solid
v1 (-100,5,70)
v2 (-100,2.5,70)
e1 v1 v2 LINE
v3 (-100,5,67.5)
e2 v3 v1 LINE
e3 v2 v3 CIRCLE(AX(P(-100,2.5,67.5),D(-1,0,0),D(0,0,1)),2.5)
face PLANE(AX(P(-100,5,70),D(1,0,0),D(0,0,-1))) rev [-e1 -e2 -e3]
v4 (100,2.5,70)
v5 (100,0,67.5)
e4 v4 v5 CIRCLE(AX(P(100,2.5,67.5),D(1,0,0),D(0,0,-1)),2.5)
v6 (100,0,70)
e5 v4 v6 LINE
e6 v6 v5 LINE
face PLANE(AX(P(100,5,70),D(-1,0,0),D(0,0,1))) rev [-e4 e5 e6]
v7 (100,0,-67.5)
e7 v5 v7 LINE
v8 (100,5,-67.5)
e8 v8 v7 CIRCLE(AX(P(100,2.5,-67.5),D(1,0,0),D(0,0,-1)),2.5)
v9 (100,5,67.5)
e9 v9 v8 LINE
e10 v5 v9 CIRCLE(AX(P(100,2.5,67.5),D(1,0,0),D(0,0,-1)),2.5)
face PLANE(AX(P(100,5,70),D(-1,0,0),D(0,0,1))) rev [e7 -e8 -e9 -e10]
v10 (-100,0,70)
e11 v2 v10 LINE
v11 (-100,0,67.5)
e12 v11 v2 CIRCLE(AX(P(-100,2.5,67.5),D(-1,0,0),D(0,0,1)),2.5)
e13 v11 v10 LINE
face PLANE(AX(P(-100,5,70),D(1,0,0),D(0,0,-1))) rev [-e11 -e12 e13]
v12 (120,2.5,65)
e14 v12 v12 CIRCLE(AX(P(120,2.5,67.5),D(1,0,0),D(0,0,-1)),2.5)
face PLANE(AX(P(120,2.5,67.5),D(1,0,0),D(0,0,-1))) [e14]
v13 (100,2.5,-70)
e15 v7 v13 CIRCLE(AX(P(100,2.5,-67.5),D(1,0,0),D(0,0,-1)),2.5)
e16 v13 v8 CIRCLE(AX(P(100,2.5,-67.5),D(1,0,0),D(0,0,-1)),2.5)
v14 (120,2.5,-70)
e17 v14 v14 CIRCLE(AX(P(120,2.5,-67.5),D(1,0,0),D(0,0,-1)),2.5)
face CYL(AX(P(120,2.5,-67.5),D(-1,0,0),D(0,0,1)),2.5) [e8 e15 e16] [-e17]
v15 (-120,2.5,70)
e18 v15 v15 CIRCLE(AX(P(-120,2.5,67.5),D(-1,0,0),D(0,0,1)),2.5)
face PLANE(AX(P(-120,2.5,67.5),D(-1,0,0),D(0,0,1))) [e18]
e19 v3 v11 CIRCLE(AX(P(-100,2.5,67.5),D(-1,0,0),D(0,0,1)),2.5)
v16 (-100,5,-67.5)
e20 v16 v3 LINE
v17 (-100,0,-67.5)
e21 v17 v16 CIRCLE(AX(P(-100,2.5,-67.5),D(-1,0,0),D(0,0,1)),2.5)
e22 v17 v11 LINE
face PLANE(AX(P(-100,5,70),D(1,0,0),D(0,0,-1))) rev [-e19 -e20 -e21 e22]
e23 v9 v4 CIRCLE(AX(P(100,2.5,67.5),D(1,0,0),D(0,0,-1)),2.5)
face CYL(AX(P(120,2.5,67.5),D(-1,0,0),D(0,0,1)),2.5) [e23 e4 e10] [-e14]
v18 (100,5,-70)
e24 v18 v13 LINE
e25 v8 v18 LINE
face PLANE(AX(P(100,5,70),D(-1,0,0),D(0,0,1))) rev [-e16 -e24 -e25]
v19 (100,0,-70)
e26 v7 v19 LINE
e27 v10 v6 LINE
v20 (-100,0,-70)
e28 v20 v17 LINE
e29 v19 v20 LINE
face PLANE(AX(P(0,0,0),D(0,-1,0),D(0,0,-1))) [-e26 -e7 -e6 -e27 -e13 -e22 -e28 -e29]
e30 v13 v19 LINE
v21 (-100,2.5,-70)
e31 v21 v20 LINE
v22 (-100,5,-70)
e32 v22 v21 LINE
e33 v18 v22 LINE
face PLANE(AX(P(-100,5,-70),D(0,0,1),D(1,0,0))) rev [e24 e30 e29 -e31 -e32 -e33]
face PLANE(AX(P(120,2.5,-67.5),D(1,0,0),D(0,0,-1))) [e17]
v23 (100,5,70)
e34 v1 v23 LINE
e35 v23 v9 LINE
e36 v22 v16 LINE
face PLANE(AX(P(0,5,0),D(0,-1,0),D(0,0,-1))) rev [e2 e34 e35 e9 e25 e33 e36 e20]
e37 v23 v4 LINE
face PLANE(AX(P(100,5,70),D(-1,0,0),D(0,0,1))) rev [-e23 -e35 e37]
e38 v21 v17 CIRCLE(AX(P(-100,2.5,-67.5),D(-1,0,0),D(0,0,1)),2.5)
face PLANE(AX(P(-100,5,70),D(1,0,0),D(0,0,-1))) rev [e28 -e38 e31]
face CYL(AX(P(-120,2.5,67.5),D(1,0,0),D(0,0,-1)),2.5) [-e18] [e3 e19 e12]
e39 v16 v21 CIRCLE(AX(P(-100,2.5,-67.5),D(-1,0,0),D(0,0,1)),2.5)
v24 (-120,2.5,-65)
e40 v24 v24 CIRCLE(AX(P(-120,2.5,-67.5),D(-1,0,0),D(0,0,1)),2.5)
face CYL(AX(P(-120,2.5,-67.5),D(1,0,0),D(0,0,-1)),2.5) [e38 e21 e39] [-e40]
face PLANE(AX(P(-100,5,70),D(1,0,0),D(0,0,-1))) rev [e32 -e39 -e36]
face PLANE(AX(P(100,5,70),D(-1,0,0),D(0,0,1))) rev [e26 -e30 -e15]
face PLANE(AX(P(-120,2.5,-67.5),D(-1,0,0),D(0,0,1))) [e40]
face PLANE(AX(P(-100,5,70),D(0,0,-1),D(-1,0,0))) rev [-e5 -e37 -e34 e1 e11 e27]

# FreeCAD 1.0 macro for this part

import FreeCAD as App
import Part
import Sketcher

V = App.Vector

doc = App.newDocument("Part")
body = doc.addObject("PartDesign::Body", "Body")

# Sketch on XZ plane
sketch1 = body.newObject("Sketcher::SketchObject", "Sketch")
sketch1.AttachmentSupport = (doc.getObject("XZ_Plane"), [""])
sketch1.MapMode = "FlatFace"
sketch1.addGeometry(Part.LineSegment(V(-100, -70, 0), V(-100, 70, 0)), False)
sketch1.addGeometry(Part.LineSegment(V(-100, 70, 0), V(100, 70, 0)), False)
sketch1.addGeometry(Part.LineSegment(V(100, 70, 0), V(100, -70, 0)), False)
sketch1.addGeometry(Part.LineSegment(V(100, -70, 0), V(-100, -70, 0)), False)
sketch1.addConstraint(Sketcher.Constraint("Coincident", 0, 2, 1, 1))
sketch1.addConstraint(Sketcher.Constraint("Coincident", 1, 2, 2, 1))
sketch1.addConstraint(Sketcher.Constraint("Coincident", 2, 2, 3, 1))
sketch1.addConstraint(Sketcher.Constraint("Coincident", 3, 2, 0, 1))
sketch1.addConstraint(Sketcher.Constraint("Vertical", 0))
sketch1.addConstraint(Sketcher.Constraint("Horizontal", 1))
sketch1.addConstraint(Sketcher.Constraint("Vertical", 2))
sketch1.addConstraint(Sketcher.Constraint("Horizontal", 3))
sketch1.addConstraint(Sketcher.Constraint("Symmetric", 0, 2, 2, 2, -1, 1))
sketch1.addConstraint(Sketcher.Constraint("DistanceX", 1, 1, 1, 2, 200.0))
sketch1.addConstraint(Sketcher.Constraint("DistanceY", 0, 1, 0, 2, 140.0))
pad1 = body.newObject("PartDesign::Pad", "Pad")
pad1.Profile = sketch1
pad1.Length = 5
pad1.Reversed = True

# Sketch on YZ plane
sketch2 = body.newObject("Sketcher::SketchObject", "Sketch001")
sketch2.AttachmentSupport = (doc.getObject("YZ_Plane"), [""])
sketch2.MapMode = "FlatFace"
sketch2.AttachmentOffset = App.Placement(V(0, 0, -100), App.Rotation())
sketch2.addGeometry(Part.Circle(V(2.5, 67.5, 0), V(0, 0, 1), 2.5), False)
sketch2.addConstraint(Sketcher.Constraint("Diameter", 0, 5.0))
sketch2.addConstraint(Sketcher.Constraint("DistanceX", -1, 1, 0, 3, 2.5))
sketch2.addConstraint(Sketcher.Constraint("DistanceY", -1, 1, 0, 3, 67.5))
pad2 = body.newObject("PartDesign::Pad", "Pad001")
pad2.Profile = sketch2
pad2.Length = 20
pad2.Reversed = True

# Sketch on YZ plane
sketch3 = body.newObject("Sketcher::SketchObject", "Sketch002")
sketch3.AttachmentSupport = (doc.getObject("YZ_Plane"), [""])
sketch3.MapMode = "FlatFace"
sketch3.AttachmentOffset = App.Placement(V(0, 0, 100), App.Rotation())
sketch3.addGeometry(Part.Circle(V(2.5, 67.5, 0), V(0, 0, 1), 2.5), False)
sketch3.addConstraint(Sketcher.Constraint("Diameter", 0, 5.0))
sketch3.addConstraint(Sketcher.Constraint("DistanceX", -1, 1, 0, 3, 2.5))
sketch3.addConstraint(Sketcher.Constraint("DistanceY", -1, 1, 0, 3, 67.5))
pad3 = body.newObject("PartDesign::Pad", "Pad002")
pad3.Profile = sketch3
pad3.Length = 20

# Sketch on YZ plane
sketch4 = body.newObject("Sketcher::SketchObject", "Sketch003")
sketch4.AttachmentSupport = (doc.getObject("YZ_Plane"), [""])
sketch4.MapMode = "FlatFace"
sketch4.AttachmentOffset = App.Placement(V(0, 0, -100), App.Rotation())
sketch4.addGeometry(Part.Circle(V(2.5, -67.5, 0), V(0, 0, 1), 2.5), False)
sketch4.addConstraint(Sketcher.Constraint("Diameter", 0, 5.0))
sketch4.addConstraint(Sketcher.Constraint("DistanceX", -1, 1, 0, 3, 2.5))
sketch4.addConstraint(Sketcher.Constraint("DistanceY", 0, 3, -1, 1, 67.5))
pad4 = body.newObject("PartDesign::Pad", "Pad003")
pad4.Profile = sketch4
pad4.Length = 20
pad4.Reversed = True

# Sketch on YZ plane
sketch5 = body.newObject("Sketcher::SketchObject", "Sketch004")
sketch5.AttachmentSupport = (doc.getObject("YZ_Plane"), [""])
sketch5.MapMode = "FlatFace"
sketch5.AttachmentOffset = App.Placement(V(0, 0, 100), App.Rotation())
sketch5.addGeometry(Part.Circle(V(2.5, -67.5, 0), V(0, 0, 1), 2.5), False)
sketch5.addConstraint(Sketcher.Constraint("Diameter", 0, 5.0))
sketch5.addConstraint(Sketcher.Constraint("DistanceX", -1, 1, 0, 3, 2.5))
sketch5.addConstraint(Sketcher.Constraint("DistanceY", 0, 3, -1, 1, 67.5))
pad5 = body.newObject("PartDesign::Pad", "Pad004")
pad5.Profile = sketch5
pad5.Length = 20

doc.recompute()
